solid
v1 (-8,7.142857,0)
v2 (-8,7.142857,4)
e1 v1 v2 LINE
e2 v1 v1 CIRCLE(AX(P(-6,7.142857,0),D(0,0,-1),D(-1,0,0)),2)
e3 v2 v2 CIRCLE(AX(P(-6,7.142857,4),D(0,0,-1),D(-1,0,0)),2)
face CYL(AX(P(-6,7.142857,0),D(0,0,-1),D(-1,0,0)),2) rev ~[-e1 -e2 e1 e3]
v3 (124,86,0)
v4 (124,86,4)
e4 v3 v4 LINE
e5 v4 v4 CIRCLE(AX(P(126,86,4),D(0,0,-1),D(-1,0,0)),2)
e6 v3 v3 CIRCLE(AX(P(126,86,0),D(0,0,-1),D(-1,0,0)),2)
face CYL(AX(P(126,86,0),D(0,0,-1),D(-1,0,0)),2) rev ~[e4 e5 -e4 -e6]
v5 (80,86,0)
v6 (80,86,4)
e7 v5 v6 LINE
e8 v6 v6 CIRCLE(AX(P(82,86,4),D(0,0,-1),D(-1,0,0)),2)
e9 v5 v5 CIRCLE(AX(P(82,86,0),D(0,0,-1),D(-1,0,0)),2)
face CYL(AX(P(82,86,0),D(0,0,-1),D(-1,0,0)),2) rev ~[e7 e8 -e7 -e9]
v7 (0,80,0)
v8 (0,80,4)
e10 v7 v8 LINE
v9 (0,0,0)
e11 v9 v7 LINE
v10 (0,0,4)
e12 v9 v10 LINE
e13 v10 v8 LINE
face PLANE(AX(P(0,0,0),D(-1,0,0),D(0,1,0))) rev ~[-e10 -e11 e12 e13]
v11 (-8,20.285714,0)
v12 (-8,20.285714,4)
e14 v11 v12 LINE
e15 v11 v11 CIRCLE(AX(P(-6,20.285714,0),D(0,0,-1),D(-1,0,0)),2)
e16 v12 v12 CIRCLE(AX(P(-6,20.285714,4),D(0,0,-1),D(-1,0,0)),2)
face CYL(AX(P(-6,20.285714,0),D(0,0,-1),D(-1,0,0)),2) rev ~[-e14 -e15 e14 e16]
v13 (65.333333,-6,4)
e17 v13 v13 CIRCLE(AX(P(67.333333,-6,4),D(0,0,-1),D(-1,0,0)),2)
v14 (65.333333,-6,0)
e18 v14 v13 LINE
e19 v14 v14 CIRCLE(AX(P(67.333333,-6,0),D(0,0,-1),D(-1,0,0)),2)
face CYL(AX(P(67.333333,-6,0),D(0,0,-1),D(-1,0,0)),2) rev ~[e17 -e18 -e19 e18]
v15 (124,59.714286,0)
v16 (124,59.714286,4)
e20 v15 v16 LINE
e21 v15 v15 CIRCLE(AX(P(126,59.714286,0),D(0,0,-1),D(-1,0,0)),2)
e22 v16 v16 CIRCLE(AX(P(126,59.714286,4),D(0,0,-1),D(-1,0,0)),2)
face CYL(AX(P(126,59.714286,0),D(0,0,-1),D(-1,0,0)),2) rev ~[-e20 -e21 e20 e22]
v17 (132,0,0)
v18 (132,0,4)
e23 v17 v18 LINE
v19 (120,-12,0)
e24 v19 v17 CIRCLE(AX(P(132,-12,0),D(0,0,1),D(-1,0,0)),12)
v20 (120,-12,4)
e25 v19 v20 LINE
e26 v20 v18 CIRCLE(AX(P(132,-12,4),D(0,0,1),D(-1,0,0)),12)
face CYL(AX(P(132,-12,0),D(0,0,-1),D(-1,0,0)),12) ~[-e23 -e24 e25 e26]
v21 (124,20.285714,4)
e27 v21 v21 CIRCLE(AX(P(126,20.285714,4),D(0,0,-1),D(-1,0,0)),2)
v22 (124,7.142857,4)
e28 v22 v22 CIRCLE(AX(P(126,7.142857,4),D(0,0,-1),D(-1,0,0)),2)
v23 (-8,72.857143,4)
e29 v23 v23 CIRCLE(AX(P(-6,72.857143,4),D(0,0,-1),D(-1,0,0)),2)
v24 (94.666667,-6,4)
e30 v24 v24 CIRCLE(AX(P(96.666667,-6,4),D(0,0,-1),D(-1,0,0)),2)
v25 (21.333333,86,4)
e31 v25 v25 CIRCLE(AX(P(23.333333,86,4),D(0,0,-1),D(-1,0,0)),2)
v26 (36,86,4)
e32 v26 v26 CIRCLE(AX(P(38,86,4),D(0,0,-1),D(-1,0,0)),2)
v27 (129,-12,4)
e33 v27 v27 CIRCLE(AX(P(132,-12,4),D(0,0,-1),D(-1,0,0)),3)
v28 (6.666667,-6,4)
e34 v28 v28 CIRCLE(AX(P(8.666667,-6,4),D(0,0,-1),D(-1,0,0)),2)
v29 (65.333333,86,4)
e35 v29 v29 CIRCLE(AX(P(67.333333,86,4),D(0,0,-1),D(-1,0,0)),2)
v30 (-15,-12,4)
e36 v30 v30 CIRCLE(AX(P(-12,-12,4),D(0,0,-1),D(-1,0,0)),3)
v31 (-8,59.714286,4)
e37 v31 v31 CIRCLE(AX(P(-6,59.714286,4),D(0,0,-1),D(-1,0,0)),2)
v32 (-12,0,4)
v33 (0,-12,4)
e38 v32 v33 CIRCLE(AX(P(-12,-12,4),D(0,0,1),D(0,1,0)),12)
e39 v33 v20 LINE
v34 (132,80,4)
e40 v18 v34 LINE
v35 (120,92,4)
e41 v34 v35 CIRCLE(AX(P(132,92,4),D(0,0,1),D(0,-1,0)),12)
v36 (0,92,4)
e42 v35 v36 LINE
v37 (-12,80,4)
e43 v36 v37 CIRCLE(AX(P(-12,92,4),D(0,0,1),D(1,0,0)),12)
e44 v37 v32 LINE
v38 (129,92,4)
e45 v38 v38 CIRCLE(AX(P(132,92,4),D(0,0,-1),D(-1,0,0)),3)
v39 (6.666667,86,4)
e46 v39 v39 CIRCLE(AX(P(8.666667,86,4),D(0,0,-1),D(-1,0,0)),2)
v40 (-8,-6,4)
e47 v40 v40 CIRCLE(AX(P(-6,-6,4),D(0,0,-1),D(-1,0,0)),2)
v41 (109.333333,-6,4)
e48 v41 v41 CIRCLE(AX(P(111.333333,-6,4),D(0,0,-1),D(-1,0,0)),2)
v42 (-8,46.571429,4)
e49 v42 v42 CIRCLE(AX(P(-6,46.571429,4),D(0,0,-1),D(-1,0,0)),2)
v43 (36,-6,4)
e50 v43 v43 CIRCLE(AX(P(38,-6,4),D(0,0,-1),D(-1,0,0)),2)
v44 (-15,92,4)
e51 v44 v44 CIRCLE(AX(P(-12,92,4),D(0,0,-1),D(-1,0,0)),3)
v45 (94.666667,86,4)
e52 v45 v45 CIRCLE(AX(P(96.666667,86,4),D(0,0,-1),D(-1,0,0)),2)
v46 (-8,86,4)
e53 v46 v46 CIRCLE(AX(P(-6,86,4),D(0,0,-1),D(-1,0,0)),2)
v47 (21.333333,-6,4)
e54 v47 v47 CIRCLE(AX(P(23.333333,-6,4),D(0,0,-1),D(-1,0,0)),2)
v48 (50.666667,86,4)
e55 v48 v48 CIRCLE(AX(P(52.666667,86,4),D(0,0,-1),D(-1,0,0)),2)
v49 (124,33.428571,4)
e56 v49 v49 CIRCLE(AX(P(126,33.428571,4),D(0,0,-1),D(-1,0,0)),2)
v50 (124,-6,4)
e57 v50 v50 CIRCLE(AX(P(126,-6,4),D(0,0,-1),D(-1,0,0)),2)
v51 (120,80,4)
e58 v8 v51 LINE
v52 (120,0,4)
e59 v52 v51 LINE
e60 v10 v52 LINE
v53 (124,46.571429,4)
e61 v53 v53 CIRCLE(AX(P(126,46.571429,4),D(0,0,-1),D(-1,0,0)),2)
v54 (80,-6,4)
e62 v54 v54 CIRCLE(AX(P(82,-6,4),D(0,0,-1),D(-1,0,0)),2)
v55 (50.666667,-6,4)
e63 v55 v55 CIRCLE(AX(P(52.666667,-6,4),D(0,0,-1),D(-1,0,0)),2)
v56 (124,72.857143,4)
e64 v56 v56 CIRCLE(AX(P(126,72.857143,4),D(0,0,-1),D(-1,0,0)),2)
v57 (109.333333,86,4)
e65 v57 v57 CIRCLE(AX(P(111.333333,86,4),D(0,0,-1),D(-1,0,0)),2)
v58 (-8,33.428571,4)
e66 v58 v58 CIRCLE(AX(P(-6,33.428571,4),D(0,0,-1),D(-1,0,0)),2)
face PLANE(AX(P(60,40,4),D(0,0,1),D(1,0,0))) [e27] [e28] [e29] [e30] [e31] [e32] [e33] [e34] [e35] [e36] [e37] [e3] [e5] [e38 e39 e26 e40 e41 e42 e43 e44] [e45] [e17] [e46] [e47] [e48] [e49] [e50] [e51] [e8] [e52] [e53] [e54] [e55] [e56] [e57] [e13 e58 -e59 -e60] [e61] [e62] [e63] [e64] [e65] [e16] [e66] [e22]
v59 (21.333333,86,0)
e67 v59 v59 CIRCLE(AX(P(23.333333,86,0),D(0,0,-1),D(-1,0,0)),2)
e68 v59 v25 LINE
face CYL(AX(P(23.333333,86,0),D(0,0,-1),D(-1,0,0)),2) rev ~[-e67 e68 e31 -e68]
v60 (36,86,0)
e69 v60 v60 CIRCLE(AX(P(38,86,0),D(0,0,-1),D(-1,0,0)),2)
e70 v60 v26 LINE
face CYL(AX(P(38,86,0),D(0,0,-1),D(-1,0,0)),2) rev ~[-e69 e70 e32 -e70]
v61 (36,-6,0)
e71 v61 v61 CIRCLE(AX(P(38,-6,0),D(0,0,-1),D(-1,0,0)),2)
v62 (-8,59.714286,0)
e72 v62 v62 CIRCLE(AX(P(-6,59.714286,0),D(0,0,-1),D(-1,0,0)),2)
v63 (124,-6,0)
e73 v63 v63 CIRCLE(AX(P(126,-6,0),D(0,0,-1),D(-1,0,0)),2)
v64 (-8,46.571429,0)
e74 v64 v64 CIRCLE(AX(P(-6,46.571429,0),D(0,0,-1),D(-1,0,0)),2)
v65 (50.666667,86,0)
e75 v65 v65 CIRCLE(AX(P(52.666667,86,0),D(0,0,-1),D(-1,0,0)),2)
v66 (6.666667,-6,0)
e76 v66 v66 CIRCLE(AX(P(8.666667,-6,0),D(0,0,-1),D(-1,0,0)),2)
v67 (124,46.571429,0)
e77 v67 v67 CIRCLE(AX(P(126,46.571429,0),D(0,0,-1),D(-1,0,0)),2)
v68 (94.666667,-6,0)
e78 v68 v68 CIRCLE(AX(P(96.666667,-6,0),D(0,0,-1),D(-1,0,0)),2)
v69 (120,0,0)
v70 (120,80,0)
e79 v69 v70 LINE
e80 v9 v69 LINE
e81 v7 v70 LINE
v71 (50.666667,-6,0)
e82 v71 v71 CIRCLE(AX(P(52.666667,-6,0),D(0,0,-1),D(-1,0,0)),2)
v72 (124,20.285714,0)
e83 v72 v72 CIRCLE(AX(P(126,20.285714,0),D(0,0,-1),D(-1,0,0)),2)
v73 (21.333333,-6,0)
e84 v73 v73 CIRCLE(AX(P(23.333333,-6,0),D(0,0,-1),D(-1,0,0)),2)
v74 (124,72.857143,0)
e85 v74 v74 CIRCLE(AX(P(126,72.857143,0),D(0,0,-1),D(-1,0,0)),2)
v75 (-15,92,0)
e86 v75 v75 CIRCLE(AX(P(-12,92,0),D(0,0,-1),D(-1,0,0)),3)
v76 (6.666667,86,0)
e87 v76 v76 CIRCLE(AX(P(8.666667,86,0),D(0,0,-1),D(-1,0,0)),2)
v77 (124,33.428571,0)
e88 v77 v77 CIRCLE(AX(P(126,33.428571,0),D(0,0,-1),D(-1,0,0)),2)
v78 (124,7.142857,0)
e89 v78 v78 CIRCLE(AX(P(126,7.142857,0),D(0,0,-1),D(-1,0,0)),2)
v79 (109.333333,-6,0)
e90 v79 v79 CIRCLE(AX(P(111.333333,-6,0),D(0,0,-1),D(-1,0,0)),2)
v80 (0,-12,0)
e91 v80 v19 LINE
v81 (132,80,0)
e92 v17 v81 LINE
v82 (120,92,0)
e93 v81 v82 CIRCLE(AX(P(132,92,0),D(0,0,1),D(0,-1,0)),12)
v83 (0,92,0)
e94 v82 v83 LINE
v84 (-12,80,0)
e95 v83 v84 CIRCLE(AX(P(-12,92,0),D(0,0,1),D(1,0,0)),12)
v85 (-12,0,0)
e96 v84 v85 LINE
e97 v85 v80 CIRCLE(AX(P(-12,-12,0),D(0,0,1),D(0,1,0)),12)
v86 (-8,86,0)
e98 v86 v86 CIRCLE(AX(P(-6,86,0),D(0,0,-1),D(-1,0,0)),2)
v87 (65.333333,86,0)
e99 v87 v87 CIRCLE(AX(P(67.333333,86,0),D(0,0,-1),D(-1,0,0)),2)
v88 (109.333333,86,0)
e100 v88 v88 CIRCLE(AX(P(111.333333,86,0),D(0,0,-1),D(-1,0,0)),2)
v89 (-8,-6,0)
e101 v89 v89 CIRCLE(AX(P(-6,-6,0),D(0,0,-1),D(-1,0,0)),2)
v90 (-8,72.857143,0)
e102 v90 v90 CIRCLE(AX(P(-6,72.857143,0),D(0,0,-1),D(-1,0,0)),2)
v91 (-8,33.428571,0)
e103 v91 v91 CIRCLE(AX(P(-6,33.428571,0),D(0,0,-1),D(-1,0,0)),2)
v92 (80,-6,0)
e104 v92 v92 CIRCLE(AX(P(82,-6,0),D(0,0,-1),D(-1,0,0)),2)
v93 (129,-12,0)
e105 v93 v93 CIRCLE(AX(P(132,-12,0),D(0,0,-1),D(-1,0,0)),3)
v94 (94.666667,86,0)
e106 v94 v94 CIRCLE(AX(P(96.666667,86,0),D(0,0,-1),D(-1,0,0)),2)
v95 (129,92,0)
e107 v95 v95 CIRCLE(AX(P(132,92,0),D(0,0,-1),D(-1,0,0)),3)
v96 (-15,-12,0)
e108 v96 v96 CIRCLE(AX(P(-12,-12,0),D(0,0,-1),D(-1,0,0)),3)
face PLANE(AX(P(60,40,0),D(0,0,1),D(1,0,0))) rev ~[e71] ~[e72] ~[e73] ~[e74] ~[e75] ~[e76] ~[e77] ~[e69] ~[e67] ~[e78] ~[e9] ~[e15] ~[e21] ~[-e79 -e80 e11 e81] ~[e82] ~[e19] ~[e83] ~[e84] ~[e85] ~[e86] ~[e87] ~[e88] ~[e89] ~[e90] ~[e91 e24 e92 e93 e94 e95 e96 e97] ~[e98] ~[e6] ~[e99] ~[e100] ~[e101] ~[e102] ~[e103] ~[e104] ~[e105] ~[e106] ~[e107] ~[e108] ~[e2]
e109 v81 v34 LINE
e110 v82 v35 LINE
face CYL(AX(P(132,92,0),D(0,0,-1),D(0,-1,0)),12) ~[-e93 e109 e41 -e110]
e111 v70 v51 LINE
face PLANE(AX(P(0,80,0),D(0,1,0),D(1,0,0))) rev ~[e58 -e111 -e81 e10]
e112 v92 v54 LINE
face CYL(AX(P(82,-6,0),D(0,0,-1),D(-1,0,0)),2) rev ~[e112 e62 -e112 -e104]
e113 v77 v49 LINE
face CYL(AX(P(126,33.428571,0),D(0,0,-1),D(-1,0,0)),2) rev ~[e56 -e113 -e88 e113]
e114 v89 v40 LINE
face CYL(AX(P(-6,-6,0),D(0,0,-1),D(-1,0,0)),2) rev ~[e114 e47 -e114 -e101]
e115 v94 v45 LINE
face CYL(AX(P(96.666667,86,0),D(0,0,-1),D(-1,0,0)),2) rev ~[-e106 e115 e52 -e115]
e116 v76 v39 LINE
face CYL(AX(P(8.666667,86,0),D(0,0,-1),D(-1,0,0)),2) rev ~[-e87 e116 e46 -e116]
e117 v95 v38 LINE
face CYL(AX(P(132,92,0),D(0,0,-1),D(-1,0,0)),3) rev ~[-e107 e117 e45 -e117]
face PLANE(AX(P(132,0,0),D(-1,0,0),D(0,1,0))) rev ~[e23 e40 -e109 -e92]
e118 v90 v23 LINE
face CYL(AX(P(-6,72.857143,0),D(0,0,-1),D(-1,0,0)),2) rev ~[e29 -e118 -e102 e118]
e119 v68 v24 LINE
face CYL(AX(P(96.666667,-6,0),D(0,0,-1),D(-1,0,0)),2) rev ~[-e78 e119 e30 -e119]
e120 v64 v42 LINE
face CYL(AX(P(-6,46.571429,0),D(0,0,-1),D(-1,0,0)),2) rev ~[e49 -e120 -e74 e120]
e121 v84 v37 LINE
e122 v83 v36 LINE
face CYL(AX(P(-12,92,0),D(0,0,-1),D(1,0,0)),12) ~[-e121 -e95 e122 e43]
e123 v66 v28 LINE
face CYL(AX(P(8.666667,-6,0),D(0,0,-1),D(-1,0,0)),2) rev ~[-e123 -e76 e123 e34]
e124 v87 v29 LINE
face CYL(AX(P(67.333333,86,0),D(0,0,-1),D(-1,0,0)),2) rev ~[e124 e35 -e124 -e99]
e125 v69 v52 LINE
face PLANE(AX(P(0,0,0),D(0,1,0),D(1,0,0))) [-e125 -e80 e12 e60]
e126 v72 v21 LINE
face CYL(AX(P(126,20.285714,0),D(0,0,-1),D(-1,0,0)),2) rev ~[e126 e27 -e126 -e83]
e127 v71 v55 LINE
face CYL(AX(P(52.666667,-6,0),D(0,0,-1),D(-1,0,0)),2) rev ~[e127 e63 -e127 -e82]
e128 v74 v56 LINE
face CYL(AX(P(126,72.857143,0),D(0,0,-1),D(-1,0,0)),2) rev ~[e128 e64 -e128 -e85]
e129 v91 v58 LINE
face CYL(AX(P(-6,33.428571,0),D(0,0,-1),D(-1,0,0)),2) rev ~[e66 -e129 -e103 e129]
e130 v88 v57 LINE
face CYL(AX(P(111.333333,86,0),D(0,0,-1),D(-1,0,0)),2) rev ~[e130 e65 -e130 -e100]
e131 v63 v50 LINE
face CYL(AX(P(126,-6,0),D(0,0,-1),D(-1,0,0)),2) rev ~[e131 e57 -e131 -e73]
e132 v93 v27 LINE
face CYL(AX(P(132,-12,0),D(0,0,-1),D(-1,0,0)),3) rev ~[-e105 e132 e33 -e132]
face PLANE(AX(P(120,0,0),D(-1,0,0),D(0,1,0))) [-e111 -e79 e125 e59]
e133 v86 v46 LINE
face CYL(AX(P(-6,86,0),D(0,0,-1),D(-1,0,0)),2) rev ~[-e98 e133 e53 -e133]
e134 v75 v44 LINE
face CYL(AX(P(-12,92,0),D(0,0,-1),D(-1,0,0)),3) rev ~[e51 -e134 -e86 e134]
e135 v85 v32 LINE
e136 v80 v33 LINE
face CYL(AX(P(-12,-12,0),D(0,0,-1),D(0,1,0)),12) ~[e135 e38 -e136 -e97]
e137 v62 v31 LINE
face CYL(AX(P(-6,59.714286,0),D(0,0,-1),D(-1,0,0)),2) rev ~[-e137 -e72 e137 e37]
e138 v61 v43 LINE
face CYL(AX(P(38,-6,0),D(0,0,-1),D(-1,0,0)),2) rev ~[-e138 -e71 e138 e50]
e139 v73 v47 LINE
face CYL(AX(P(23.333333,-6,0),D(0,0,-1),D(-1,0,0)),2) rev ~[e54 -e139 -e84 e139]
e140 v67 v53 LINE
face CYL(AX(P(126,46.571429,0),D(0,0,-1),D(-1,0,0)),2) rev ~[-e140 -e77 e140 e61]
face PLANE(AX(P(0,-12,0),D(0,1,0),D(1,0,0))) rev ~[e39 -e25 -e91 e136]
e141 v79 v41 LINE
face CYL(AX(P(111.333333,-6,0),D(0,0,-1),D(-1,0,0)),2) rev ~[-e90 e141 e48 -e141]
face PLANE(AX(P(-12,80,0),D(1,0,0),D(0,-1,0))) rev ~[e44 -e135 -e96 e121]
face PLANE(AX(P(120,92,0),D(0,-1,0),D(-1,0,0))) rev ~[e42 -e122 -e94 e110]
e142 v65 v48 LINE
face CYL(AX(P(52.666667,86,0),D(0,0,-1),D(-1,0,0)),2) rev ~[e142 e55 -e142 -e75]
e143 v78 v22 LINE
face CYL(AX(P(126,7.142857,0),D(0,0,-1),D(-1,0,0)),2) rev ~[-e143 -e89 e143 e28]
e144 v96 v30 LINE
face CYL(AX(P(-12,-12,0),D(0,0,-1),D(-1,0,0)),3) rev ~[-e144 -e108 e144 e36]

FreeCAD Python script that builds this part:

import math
import FreeCAD as App
import Part
import Sketcher


def add_polygon(sketch, points):
    """Adds a closed chain of lines whose ends are joined by coincident constraints."""
    first, n = sketch.GeometryCount, len(points)
    for a, b in zip(points, points[1:] + points[:1]):
        sketch.addGeometry(Part.LineSegment(App.Vector(*a, 0), App.Vector(*b, 0)), False)
    for i in range(n):
        sketch.addConstraint(Sketcher.Constraint("Coincident", first + i, 2, first + (i + 1) % n, 1))

doc = App.newDocument("Part")
params = doc.addObject("Spreadsheet::Sheet", "Params")
for row, (alias, value) in enumerate([
    ("sketch1_radius", "12 mm"),
    ("sketch1_width", "120 mm"),
    ("sketch1_height", "80 mm"),
    ("pad1_length", "4 mm"),
    ("sketch2_diameter", "4 mm"),
    ("pocket1_length", "4 mm"),
    ("linearpattern_pitch", "14.666667 mm"),
    ("linearpattern2_pitch", "13.142857 mm"),
    ("sketch3_diameter", "4 mm"),
    ("pocket2_length", "4 mm"),
    ("linearpattern3_pitch", "14.666667 mm"),
    ("linearpattern4_pitch", "13.142857 mm"),
    ("sketch4_diameter", "6 mm"),
    ("pocket3_length", "10 mm"),
], start=1):
    params.set(f"A{row}", alias)
    params.set(f"B{row}", "=" + value)
    params.setAlias(f"B{row}", alias)

body = doc.addObject("PartDesign::Body", "Body")

# Sketch on XY plane
sketch1 = doc.addObject("Sketcher::SketchObject", "Sketch")
body.addObject(sketch1)
sketch1.AttachmentSupport = (doc.XY_Plane, [""])
sketch1.MapMode = "FlatFace"
sketch1.addGeometry(Part.LineSegment(App.Vector(0, -12, 0), App.Vector(120, -12, 0)), False)  # 0
sketch1.addGeometry(Part.ArcOfCircle(Part.Circle(App.Vector(132, -12, 0), App.Vector(0, 0, 1), 12), math.radians(180), math.radians(450)), False)  # 1
sketch1.addGeometry(Part.LineSegment(App.Vector(132, 0, 0), App.Vector(132, 80, 0)), False)  # 2
sketch1.addGeometry(Part.ArcOfCircle(Part.Circle(App.Vector(132, 92, 0), App.Vector(0, 0, 1), 12), math.radians(-90), math.radians(180)), False)  # 3
sketch1.addGeometry(Part.LineSegment(App.Vector(120, 92, 0), App.Vector(0, 92, 0)), False)  # 4
sketch1.addGeometry(Part.ArcOfCircle(Part.Circle(App.Vector(-12, 92, 0), App.Vector(0, 0, 1), 12), math.radians(0), math.radians(270)), False)  # 5
sketch1.addGeometry(Part.LineSegment(App.Vector(-12, 80, 0), App.Vector(-12, 0, 0)), False)  # 6
sketch1.addGeometry(Part.ArcOfCircle(Part.Circle(App.Vector(-12, -12, 0), App.Vector(0, 0, 1), 12), math.radians(90), math.radians(360)), False)  # 7
add_polygon(sketch1, [(120, 0), (0, 0), (0, 80), (120, 80)])  # lines 8-11
sketch1.addConstraint([
    Sketcher.Constraint("Coincident", 0, 2, 1, 1),
    Sketcher.Constraint("Coincident", 1, 2, 2, 1),
    Sketcher.Constraint("Coincident", 2, 2, 3, 1),
    Sketcher.Constraint("Coincident", 3, 2, 4, 1),
    Sketcher.Constraint("Coincident", 4, 2, 5, 1),
    Sketcher.Constraint("Coincident", 5, 2, 6, 1),
    Sketcher.Constraint("Coincident", 6, 2, 7, 1),
    Sketcher.Constraint("Coincident", 7, 2, 0, 1),
    Sketcher.Constraint("Horizontal", 0),
    Sketcher.Constraint("Vertical", 2),
    Sketcher.Constraint("Horizontal", 4),
    Sketcher.Constraint("Vertical", 6),
    Sketcher.Constraint("Horizontal", 8),
    Sketcher.Constraint("Vertical", 9),
    Sketcher.Constraint("Horizontal", 10),
    Sketcher.Constraint("Vertical", 11),
    Sketcher.Constraint("Coincident", 8, 2, -1, 1),
    Sketcher.Constraint("Equal", 1, 3),
    Sketcher.Constraint("Equal", 3, 5),
    Sketcher.Constraint("Equal", 5, 7),
    Sketcher.Constraint("PointOnObject", 1, 2, -1),
    Sketcher.Constraint("PointOnObject", 4, 2, -2),
    Sketcher.Constraint("PointOnObject", 6, 2, -1),
    Sketcher.Constraint("PointOnObject", 7, 2, -2),
    Sketcher.Constraint("Horizontal", 3, 3, 5, 3),
    Sketcher.Constraint("Horizontal", 7, 3, 0, 2),
    Sketcher.Constraint("Horizontal", 5, 3, 3, 2),
    Sketcher.Constraint("Horizontal", 5, 2, 9, 2),
    Sketcher.Constraint("Vertical", 1, 3, 3, 3),
    Sketcher.Constraint("Vertical", 3, 3, 1, 2),
    Sketcher.Constraint("Vertical", 7, 3, 5, 2),
    Sketcher.Constraint("Vertical", 3, 2, 10, 2),
    Sketcher.Constraint("Radius", 1, 12.0),
    Sketcher.Constraint("DistanceX", 0, 1, 0, 2, 120.0),
    Sketcher.Constraint("DistanceY", 2, 1, 2, 2, 80.0),
])
sketch1.setExpression("Constraints[36]", "Params.sketch1_radius")
sketch1.setExpression("Constraints[37]", "Params.sketch1_width")
sketch1.setExpression("Constraints[38]", "Params.sketch1_height")
pad1 = doc.addObject("PartDesign::Pad", "Pad")
body.addObject(pad1)
pad1.Profile = sketch1
pad1.setExpression("Length", "Params.pad1_length")

# Sketch on XY plane
sketch2 = doc.addObject("Sketcher::SketchObject", "Sketch001")
body.addObject(sketch2)
sketch2.AttachmentSupport = (doc.XY_Plane, [""])
sketch2.MapMode = "FlatFace"
sketch2.addGeometry(Part.Circle(App.Vector(126, 86, 0), App.Vector(0, 0, 1), 2), False)
sketch2.addConstraint([
    Sketcher.Constraint("Diameter", 0, 4.0),
    Sketcher.Constraint("DistanceX", -1, 1, 0, 3, 126.0),
    Sketcher.Constraint("DistanceY", -1, 1, 0, 3, 86.0),
])
sketch2.setExpression("Constraints[0]", "Params.sketch2_diameter")
pocket1 = doc.addObject("PartDesign::Pocket", "Pocket")
body.addObject(pocket1)
pocket1.Profile = sketch2
pocket1.setExpression("Length", "Params.pocket1_length")
pocket1.Reversed = True
doc.recompute()

linearpattern = doc.addObject("PartDesign::LinearPattern", "LinearPattern")
body.addObject(linearpattern)
linearpattern.Originals = [pocket1]
linearpattern.Direction = (doc.X_Axis, [""])
linearpattern.Mode = "offset"
linearpattern.setExpression("Offset", "Params.linearpattern_pitch")
linearpattern.Occurrences = 9
linearpattern.Reversed = True
body.Tip = linearpattern
doc.recompute()

linearpattern2 = doc.addObject("PartDesign::LinearPattern", "LinearPattern001")
body.addObject(linearpattern2)
linearpattern2.Originals = [pocket1]
linearpattern2.Direction = (doc.Y_Axis, [""])
linearpattern2.Mode = "offset"
linearpattern2.setExpression("Offset", "Params.linearpattern2_pitch")
linearpattern2.Occurrences = 7
linearpattern2.Reversed = True
body.Tip = linearpattern2

# Sketch on XY plane
sketch3 = doc.addObject("Sketcher::SketchObject", "Sketch002")
body.addObject(sketch3)
sketch3.AttachmentSupport = (doc.XY_Plane, [""])
sketch3.MapMode = "FlatFace"
sketch3.addGeometry(Part.Circle(App.Vector(-6, -6, 0), App.Vector(0, 0, 1), 2), False)
sketch3.addConstraint([
    Sketcher.Constraint("Diameter", 0, 4.0),
    Sketcher.Constraint("DistanceX", 0, 3, -1, 1, 6.0),
    Sketcher.Constraint("DistanceY", 0, 3, -1, 1, 6.0),
])
sketch3.setExpression("Constraints[0]", "Params.sketch3_diameter")
pocket2 = doc.addObject("PartDesign::Pocket", "Pocket001")
body.addObject(pocket2)
pocket2.Profile = sketch3
pocket2.setExpression("Length", "Params.pocket2_length")
pocket2.Reversed = True
doc.recompute()

linearpattern3 = doc.addObject("PartDesign::LinearPattern", "LinearPattern002")
body.addObject(linearpattern3)
linearpattern3.Originals = [pocket2]
linearpattern3.Direction = (doc.X_Axis, [""])
linearpattern3.Mode = "offset"
linearpattern3.setExpression("Offset", "Params.linearpattern3_pitch")
linearpattern3.Occurrences = 10
body.Tip = linearpattern3
doc.recompute()

linearpattern4 = doc.addObject("PartDesign::LinearPattern", "LinearPattern003")
body.addObject(linearpattern4)
linearpattern4.Originals = [pocket2]
linearpattern4.Direction = (doc.Y_Axis, [""])
linearpattern4.Mode = "offset"
linearpattern4.setExpression("Offset", "Params.linearpattern4_pitch")
linearpattern4.Occurrences = 8
body.Tip = linearpattern4

# Sketch on XY plane
sketch4 = doc.addObject("Sketcher::SketchObject", "Sketch003")
body.addObject(sketch4)
sketch4.AttachmentSupport = (doc.XY_Plane, [""])
sketch4.MapMode = "FlatFace"
sketch4.addGeometry([
    Part.Circle(App.Vector(132, 92, 0), App.Vector(0, 0, 1), 3),
    Part.Circle(App.Vector(-12, 92, 0), App.Vector(0, 0, 1), 3),
    Part.Circle(App.Vector(-12, -12, 0), App.Vector(0, 0, 1), 3),
    Part.Circle(App.Vector(132, -12, 0), App.Vector(0, 0, 1), 3),
], False)
sketch4.addConstraint([
    Sketcher.Constraint("Equal", 0, 1),
    Sketcher.Constraint("Equal", 1, 2),
    Sketcher.Constraint("Equal", 2, 3),
    Sketcher.Constraint("Horizontal", 0, 3, 1, 3),
    Sketcher.Constraint("Horizontal", 2, 3, 3, 3),
    Sketcher.Constraint("Vertical", 1, 3, 2, 3),
    Sketcher.Constraint("Vertical", 0, 3, 3, 3),
    Sketcher.Constraint("Diameter", 0, 6.0),
    Sketcher.Constraint("DistanceX", -1, 1, 0, 3, 132.0),
    Sketcher.Constraint("DistanceY", -1, 1, 0, 3, 92.0),
    Sketcher.Constraint("DistanceX", 1, 3, -1, 1, 12.0),
    Sketcher.Constraint("DistanceY", 2, 3, -1, 1, 12.0),
])
sketch4.setExpression("Constraints[7]", "Params.sketch4_diameter")
pocket3 = doc.addObject("PartDesign::Pocket", "Pocket002")
body.addObject(pocket3)
pocket3.Profile = sketch4
pocket3.setExpression("Length", "Params.pocket3_length")
pocket3.Reversed = True

doc.recompute()
